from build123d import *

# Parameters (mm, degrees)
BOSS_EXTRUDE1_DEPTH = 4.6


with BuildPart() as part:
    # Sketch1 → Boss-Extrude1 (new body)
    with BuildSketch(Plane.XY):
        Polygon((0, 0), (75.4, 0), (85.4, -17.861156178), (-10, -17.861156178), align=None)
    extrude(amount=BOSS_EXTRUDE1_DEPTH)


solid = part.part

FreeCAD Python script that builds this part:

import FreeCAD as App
import Part
import Sketcher
from FreeCAD import Vector
Q = App.Units.Quantity

doc = App.newDocument("Part")
body = doc.addObject("PartDesign::Body", "Body")

# Sketch on XY plane
sketch1 = body.newObject("Sketcher::SketchObject", "Sketch")
sketch1.AttachmentSupport = (doc.getObject("XY_Plane"), [""])
sketch1.MapMode = "FlatFace"
sketch1.addGeometry(Part.LineSegment(Vector(75, 0, 0), Vector(0, 0, 0)), False)
sketch1.addGeometry(Part.LineSegment(Vector(0, 0, 0), Vector(-10, -18, 0)), False)
sketch1.addGeometry(Part.LineSegment(Vector(-10, -18, 0), Vector(85, -18, 0)), False)
sketch1.addGeometry(Part.LineSegment(Vector(85, -18, 0), Vector(75, 0, 0)), False)
sketch1.addConstraint(Sketcher.Constraint("Coincident", 0, 2, 1, 1))
sketch1.addConstraint(Sketcher.Constraint("Coincident", 1, 2, 2, 1))
sketch1.addConstraint(Sketcher.Constraint("Coincident", 2, 2, 3, 1))
sketch1.addConstraint(Sketcher.Constraint("Coincident", 3, 2, 0, 1))
sketch1.addConstraint(Sketcher.Constraint("Horizontal", 0))
sketch1.addConstraint(Sketcher.Constraint("Horizontal", 2))
sketch1.addConstraint(Sketcher.Constraint("Coincident", 0, 2, -1, 1))
sketch1.addConstraint(Sketcher.Constraint("Equal", 1, 3))
sketch1.addConstraint(Sketcher.Constraint("DistanceX", 0, 2, 0, 1, Q("75.4 mm")))
sketch1.addConstraint(Sketcher.Constraint("DistanceX", 2, 1, 2, 2, Q("95.4 mm")))
sketch1.addConstraint(Sketcher.Constraint("Distance", 1, Q("20.47 mm")))
pad1 = body.newObject("PartDesign::Pad", "Pad")
pad1.Profile = sketch1
pad1.Length = 4.6

doc.recompute()
